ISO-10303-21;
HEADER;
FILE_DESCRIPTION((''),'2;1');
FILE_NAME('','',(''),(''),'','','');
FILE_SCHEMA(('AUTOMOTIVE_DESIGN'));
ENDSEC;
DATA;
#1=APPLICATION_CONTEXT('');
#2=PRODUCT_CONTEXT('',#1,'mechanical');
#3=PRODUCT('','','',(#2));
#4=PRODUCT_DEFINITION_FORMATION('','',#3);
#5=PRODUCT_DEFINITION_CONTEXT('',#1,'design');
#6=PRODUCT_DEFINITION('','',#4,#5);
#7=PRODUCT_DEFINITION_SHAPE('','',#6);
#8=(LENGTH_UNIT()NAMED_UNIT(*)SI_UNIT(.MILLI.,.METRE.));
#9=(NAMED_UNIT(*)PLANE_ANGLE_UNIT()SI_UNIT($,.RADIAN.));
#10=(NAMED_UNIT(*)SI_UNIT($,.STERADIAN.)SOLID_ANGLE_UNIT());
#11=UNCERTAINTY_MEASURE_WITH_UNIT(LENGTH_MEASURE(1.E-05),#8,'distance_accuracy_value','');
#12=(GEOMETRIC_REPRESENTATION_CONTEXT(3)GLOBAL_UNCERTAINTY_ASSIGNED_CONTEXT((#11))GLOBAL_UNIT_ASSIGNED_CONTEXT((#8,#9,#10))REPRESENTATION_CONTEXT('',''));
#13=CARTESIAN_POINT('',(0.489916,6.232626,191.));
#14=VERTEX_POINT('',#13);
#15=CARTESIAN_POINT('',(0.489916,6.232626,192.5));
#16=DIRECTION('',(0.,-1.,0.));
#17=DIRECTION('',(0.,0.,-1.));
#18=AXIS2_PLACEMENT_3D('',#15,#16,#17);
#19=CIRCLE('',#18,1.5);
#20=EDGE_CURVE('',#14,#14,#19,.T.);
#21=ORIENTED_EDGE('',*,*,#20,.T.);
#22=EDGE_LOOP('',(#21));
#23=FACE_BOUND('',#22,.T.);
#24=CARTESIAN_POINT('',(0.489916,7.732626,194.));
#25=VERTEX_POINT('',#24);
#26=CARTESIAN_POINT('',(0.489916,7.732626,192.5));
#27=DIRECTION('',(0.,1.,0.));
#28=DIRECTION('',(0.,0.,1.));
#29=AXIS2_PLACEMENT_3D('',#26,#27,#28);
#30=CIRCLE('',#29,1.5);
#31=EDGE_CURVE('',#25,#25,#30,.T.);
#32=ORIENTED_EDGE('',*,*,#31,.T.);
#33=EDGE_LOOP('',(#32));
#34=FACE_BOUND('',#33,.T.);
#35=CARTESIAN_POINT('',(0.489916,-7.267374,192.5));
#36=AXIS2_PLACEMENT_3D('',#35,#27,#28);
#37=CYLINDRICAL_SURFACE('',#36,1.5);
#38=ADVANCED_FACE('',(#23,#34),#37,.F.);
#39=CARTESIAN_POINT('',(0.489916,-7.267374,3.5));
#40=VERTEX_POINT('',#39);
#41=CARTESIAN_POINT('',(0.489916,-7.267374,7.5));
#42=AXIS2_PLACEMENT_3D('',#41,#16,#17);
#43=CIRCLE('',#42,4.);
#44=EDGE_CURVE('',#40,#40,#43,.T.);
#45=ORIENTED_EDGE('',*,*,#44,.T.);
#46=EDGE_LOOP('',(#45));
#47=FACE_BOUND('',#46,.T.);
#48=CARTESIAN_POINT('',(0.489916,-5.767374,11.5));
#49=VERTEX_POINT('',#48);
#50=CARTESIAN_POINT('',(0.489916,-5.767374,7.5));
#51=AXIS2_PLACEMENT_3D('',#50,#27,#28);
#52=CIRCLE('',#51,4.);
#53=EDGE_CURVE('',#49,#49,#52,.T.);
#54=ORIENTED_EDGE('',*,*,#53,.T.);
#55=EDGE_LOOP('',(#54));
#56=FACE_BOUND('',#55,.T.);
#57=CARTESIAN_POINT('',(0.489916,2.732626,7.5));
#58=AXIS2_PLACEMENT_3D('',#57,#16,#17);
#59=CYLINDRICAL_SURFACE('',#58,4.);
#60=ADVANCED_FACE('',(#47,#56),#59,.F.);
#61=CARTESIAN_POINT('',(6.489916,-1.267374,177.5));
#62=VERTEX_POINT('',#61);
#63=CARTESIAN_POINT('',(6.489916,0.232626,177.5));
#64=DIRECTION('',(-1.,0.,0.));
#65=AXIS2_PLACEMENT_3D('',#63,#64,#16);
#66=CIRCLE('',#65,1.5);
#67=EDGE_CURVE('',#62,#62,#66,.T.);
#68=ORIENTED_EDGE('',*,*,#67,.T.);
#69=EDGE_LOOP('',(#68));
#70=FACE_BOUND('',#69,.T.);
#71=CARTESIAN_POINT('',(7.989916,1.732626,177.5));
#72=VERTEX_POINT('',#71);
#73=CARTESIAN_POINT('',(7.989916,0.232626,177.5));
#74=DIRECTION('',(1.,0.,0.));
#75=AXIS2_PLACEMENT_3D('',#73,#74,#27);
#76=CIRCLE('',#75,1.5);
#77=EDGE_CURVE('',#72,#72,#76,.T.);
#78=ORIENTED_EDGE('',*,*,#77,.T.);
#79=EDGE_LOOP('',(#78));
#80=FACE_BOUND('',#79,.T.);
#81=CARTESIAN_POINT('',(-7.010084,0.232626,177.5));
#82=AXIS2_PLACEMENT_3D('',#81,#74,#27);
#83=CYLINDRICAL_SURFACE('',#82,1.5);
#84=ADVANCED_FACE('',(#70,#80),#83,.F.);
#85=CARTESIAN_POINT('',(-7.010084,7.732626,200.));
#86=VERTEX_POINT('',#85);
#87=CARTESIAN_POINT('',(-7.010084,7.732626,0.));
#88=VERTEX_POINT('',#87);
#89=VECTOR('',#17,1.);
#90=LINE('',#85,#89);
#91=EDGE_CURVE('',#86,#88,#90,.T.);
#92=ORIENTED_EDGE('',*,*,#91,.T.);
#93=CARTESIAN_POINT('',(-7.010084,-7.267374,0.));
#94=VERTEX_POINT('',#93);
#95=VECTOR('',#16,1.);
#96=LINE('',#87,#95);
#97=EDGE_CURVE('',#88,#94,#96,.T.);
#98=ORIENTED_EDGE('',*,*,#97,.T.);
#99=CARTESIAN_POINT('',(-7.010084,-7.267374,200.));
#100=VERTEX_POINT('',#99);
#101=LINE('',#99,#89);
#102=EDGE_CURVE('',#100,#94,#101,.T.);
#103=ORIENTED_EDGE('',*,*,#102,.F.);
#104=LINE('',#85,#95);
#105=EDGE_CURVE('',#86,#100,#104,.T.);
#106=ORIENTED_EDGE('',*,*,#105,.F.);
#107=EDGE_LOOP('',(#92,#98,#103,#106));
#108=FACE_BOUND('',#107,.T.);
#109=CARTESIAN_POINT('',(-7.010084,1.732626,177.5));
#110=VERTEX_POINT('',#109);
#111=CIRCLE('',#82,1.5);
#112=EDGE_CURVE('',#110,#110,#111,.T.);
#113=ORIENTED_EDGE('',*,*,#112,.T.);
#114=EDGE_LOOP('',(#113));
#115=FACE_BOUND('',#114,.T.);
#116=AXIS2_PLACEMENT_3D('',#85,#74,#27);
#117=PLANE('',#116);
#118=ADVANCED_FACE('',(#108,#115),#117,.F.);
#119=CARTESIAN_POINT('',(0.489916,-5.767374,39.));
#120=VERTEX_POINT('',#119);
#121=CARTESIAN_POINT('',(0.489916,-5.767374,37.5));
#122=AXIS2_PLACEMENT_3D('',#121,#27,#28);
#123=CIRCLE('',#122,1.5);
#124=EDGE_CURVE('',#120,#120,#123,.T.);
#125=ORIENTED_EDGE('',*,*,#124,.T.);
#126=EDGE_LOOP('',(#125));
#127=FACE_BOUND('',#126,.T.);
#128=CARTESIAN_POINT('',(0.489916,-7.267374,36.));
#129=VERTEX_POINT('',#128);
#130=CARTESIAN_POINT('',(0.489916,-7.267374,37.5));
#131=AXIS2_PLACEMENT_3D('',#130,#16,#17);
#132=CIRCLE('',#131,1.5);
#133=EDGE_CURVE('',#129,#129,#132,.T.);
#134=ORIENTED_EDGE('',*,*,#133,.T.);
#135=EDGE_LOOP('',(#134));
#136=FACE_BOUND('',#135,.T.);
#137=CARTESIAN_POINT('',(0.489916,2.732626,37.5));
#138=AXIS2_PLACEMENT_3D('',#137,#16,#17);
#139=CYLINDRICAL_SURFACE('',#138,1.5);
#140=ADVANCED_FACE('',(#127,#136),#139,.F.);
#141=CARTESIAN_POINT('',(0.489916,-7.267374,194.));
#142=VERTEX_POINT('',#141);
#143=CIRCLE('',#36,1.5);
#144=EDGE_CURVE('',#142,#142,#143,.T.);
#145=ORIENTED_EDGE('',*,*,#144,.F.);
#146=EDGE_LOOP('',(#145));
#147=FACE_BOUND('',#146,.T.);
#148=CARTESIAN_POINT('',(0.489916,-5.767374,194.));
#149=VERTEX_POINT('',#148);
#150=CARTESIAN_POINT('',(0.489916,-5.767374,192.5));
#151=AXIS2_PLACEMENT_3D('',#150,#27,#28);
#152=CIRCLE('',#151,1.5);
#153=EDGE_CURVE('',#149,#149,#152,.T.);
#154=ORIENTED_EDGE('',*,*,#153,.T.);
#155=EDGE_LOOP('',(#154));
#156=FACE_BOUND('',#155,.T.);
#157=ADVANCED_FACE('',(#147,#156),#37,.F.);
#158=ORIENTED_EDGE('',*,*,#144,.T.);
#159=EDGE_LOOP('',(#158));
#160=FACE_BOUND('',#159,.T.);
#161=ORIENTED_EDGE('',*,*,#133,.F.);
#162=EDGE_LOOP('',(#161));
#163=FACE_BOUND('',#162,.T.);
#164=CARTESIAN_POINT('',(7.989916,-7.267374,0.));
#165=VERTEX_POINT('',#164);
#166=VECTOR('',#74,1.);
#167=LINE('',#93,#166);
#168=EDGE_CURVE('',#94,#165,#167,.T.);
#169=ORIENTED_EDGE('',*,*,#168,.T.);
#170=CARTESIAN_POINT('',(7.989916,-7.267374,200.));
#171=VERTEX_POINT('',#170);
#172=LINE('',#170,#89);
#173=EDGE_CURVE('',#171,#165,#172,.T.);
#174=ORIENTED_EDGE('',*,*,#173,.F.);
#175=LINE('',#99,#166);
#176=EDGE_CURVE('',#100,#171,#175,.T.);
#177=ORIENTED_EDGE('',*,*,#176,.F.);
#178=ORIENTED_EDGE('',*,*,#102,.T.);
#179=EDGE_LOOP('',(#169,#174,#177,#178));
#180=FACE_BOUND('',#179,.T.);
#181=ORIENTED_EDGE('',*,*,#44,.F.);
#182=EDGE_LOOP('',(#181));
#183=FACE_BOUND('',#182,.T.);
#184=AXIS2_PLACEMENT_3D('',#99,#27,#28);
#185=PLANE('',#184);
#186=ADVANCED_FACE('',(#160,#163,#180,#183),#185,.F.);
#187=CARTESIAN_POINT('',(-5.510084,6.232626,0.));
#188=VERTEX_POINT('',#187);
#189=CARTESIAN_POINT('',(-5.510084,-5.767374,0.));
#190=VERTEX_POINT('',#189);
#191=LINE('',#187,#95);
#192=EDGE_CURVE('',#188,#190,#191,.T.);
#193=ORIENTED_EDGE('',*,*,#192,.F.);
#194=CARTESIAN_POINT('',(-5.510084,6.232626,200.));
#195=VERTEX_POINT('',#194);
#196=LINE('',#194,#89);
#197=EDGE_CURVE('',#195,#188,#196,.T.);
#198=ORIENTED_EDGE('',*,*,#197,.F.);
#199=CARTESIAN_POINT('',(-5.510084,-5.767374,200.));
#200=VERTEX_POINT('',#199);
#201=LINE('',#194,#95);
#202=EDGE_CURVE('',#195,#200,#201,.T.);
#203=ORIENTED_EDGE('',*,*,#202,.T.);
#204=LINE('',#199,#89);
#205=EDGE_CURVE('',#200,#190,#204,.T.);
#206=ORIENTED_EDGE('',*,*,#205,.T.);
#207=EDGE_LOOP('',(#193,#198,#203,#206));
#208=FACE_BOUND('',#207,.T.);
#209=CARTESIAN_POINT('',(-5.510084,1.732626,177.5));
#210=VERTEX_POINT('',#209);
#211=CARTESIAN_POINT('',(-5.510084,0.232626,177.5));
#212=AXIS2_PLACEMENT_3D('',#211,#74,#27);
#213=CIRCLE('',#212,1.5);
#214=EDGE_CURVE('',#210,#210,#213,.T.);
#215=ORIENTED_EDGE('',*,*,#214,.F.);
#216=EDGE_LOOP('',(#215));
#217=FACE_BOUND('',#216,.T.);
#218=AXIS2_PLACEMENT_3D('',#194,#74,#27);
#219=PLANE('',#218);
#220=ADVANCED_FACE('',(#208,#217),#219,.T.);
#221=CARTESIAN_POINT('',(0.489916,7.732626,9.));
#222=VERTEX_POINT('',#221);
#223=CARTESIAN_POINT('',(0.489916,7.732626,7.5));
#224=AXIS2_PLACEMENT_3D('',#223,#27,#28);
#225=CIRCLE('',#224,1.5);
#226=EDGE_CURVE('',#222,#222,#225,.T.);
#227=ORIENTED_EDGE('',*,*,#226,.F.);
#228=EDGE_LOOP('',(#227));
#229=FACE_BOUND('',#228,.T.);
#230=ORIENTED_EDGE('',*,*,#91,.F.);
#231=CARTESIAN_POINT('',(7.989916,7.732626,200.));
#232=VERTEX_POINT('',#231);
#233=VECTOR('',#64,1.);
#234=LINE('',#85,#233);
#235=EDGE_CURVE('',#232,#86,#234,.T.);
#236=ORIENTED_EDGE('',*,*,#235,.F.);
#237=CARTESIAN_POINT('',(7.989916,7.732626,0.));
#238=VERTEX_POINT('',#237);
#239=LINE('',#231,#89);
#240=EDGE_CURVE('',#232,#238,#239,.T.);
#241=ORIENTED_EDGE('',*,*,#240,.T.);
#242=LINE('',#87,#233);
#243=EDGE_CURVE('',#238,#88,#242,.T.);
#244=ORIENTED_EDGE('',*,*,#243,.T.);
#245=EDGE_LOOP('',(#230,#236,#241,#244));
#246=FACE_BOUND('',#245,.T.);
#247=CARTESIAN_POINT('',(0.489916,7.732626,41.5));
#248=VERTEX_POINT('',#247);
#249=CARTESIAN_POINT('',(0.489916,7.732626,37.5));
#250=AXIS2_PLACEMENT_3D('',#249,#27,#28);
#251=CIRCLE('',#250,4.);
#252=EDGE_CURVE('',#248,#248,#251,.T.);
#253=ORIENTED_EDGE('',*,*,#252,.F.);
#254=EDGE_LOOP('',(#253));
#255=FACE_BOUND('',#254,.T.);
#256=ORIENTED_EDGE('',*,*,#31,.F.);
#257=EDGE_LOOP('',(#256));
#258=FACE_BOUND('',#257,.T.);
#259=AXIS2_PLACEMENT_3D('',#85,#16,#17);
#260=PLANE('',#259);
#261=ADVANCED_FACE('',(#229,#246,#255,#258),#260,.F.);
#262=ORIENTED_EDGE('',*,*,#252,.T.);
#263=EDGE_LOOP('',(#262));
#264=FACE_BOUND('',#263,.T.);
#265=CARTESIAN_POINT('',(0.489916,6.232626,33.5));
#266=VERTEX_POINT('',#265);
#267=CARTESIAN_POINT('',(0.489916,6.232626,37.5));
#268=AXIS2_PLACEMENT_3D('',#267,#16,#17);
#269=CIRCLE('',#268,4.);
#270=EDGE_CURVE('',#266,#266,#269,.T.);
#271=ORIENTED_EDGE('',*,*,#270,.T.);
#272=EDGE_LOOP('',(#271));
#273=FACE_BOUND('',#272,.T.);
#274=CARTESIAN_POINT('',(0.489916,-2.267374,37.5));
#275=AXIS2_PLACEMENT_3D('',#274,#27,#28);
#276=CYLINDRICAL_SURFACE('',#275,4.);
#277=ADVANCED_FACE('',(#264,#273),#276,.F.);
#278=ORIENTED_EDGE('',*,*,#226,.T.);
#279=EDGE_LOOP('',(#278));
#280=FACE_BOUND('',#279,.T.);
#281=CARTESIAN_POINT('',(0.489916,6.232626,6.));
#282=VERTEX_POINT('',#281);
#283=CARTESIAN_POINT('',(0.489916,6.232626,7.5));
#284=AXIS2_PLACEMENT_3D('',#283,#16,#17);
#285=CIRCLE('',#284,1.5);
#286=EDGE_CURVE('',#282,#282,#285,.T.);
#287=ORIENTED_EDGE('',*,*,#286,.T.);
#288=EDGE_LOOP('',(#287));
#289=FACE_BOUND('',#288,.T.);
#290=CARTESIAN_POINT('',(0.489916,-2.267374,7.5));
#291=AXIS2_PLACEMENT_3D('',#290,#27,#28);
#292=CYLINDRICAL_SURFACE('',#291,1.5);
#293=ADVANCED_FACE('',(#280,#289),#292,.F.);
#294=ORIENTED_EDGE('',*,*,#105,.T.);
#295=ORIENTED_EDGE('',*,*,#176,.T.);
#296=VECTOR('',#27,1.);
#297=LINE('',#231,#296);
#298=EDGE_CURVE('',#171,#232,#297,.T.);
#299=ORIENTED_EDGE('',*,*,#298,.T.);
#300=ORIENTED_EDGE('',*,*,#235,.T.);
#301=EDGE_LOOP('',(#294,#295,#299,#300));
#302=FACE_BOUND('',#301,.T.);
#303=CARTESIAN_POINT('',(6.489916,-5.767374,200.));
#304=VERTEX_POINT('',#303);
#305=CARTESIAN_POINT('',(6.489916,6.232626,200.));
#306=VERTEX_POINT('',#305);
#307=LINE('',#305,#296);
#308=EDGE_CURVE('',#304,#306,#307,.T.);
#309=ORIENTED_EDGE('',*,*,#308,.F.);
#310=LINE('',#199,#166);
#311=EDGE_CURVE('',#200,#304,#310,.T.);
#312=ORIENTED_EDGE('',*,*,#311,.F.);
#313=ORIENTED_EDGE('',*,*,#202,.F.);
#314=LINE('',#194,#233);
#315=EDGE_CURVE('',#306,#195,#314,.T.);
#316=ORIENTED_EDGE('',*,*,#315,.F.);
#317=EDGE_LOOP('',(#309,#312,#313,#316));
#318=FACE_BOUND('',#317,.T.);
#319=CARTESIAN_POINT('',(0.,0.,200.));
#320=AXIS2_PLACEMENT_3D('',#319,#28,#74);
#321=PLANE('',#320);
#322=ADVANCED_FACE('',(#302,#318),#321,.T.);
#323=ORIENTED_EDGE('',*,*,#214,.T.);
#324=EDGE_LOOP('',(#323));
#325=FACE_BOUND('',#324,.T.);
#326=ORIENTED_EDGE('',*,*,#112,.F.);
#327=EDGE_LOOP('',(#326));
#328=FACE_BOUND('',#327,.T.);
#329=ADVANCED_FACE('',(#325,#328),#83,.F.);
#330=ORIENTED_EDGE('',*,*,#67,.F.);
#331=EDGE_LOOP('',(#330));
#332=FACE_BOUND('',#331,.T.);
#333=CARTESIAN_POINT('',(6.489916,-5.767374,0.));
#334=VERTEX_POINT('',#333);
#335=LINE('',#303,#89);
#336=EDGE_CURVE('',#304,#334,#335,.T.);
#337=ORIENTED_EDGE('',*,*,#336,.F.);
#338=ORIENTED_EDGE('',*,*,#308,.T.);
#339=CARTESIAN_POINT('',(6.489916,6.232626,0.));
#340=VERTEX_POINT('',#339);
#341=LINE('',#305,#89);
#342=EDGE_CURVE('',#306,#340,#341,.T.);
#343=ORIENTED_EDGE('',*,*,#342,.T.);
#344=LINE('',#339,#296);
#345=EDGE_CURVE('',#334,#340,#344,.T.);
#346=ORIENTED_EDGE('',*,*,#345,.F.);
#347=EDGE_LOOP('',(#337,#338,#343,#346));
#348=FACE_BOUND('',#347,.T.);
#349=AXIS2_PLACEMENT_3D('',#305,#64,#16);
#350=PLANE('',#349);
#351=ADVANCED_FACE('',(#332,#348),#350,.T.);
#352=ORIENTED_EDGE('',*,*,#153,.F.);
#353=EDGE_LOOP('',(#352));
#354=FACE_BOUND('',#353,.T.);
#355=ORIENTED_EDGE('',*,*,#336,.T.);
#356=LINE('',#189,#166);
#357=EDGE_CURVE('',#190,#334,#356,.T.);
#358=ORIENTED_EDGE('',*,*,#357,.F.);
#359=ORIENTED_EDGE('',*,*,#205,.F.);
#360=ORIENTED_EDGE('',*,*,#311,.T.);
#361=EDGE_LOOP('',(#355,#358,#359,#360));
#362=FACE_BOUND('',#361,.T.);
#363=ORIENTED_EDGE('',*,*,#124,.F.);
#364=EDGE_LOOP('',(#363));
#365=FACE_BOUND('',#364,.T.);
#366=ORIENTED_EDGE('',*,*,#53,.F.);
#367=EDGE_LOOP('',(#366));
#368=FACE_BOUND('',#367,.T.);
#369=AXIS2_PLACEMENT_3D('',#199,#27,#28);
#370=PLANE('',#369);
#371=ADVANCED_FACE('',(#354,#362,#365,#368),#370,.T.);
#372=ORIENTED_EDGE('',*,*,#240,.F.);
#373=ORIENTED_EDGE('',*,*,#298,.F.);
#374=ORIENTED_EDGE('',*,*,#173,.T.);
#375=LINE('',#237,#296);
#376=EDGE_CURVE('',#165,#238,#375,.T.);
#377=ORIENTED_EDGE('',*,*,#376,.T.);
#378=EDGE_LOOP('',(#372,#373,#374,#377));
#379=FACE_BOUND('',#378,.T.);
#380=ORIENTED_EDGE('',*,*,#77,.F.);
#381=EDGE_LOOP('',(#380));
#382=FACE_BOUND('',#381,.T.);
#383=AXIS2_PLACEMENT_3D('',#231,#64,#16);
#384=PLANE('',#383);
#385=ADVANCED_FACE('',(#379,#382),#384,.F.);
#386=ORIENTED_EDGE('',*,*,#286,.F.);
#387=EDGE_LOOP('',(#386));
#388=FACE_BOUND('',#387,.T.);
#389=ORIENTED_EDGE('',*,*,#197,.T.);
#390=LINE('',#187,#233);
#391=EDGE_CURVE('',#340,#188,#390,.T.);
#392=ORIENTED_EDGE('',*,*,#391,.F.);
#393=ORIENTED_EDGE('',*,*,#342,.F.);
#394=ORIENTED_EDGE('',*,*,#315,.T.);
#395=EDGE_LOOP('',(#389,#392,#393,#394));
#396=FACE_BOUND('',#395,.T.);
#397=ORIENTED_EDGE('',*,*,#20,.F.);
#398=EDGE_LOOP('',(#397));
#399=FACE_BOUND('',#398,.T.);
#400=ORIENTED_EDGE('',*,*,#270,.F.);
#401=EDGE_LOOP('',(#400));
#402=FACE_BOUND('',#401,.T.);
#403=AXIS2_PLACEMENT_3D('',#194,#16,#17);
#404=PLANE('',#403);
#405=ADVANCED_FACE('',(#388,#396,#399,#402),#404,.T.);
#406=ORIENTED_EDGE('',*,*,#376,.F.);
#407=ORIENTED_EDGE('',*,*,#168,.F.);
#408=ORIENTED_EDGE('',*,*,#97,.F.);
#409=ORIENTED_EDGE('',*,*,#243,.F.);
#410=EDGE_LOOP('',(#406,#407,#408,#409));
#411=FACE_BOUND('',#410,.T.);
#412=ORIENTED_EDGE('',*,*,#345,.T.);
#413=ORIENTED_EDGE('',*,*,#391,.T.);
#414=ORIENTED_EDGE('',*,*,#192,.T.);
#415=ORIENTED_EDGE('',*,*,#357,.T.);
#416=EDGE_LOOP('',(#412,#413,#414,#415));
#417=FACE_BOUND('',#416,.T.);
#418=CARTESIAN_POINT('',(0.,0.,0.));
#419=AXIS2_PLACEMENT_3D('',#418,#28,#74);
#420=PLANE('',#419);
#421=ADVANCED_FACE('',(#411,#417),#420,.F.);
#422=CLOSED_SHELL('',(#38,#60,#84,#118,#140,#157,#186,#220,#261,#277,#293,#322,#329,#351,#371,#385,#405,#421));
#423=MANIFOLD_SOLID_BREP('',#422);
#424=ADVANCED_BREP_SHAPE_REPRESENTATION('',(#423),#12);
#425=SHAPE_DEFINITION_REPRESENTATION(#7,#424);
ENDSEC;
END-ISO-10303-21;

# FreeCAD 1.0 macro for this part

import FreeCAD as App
import Part
import Sketcher

V = App.Vector
Q = App.Units.Quantity


def add_polygon(sketch, points):
    """Adds a closed chain of lines whose ends are joined by coincident constraints."""
    first, n = sketch.GeometryCount, len(points)
    for a, b in zip(points, points[1:] + points[:1]):
        sketch.addGeometry(Part.LineSegment(App.Vector(*a, 0), App.Vector(*b, 0)), False)
    for i in range(n):
        sketch.addConstraint(Sketcher.Constraint("Coincident", first + i, 2, first + (i + 1) % n, 1))

doc = App.newDocument("Part")
body = doc.addObject("PartDesign::Body", "Body")

# Sketch on XY plane
sketch1 = body.newObject("Sketcher::SketchObject", "Sketch")
sketch1.AttachmentSupport = (doc.getObject("XY_Plane"), [""])
sketch1.MapMode = "FlatFace"
add_polygon(sketch1, [(-7, 8), (-7, -7), (8, -7), (8, 8)])  # lines 0-3
add_polygon(sketch1, [(6, -6), (-6, -6), (-6, 6), (6, 6)])  # lines 4-7
sketch1.addConstraint(Sketcher.Constraint("Vertical", 0))
sketch1.addConstraint(Sketcher.Constraint("Horizontal", 1))
sketch1.addConstraint(Sketcher.Constraint("Vertical", 2))
sketch1.addConstraint(Sketcher.Constraint("Horizontal", 3))
sketch1.addConstraint(Sketcher.Constraint("Horizontal", 4))
sketch1.addConstraint(Sketcher.Constraint("Vertical", 5))
sketch1.addConstraint(Sketcher.Constraint("Horizontal", 6))
sketch1.addConstraint(Sketcher.Constraint("Vertical", 7))
sketch1.addConstraint(Sketcher.Constraint("Equal", 3, 0))
sketch1.addConstraint(Sketcher.Constraint("Equal", 6, 5))
sketch1.addConstraint(Sketcher.Constraint("DistanceX", 1, 1, 1, 2, Q("15 mm")))
sketch1.addConstraint(Sketcher.Constraint("DistanceX", 4, 2, 4, 1, Q("12 mm")))
sketch1.addConstraint(Sketcher.Constraint("DistanceX", 0, 2, 4, 2, Q("1.5 mm")))
sketch1.addConstraint(Sketcher.Constraint("DistanceY", 0, 2, 4, 2, Q("1.5 mm")))
sketch1.addConstraint(Sketcher.Constraint("DistanceX", 0, 2, -1, 1, Q("7.010084 mm")))
sketch1.addConstraint(Sketcher.Constraint("DistanceY", 0, 2, -1, 1, Q("7.267374 mm")))
pad1 = body.newObject("PartDesign::Pad", "Pad")
pad1.Profile = sketch1
pad1.Length = 200

# Sketch on XZ plane
sketch2 = body.newObject("Sketcher::SketchObject", "Sketch001")
sketch2.AttachmentSupport = (doc.getObject("XZ_Plane"), [""])
sketch2.MapMode = "FlatFace"
sketch2.AttachmentOffset = App.Placement(V(0, 0, -7.732626), App.Rotation())
sketch2.addGeometry(Part.Circle(V(0.5, 192.5, 0), V(0, 0, 1), 1.5), False)
sketch2.addConstraint(Sketcher.Constraint("Diameter", 0, Q("3 mm")))
sketch2.addConstraint(Sketcher.Constraint("DistanceY", -1, 1, 0, 3, Q("192.5 mm")))
sketch2.addConstraint(Sketcher.Constraint("DistanceX", -1, 1, 0, 3, Q("0.489916 mm")))
pocket1 = body.newObject("PartDesign::Pocket", "Pocket")
pocket1.Profile = sketch2
pocket1.Length = 15
pocket1.Reversed = True

# Sketch on YZ plane
sketch3 = body.newObject("Sketcher::SketchObject", "Sketch002")
sketch3.AttachmentSupport = (doc.getObject("YZ_Plane"), [""])
sketch3.MapMode = "FlatFace"
sketch3.AttachmentOffset = App.Placement(V(0, 0, 7.989916), App.Rotation())
sketch3.addGeometry(Part.Circle(V(0.2, 177.5, 0), V(0, 0, 1), 1.5), False)
sketch3.addConstraint(Sketcher.Constraint("Diameter", 0, Q("3 mm")))
sketch3.addConstraint(Sketcher.Constraint("DistanceY", -1, 1, 0, 3, Q("177.5 mm")))
sketch3.addConstraint(Sketcher.Constraint("DistanceX", -1, 1, 0, 3, Q("0.232626 mm")))
pocket2 = body.newObject("PartDesign::Pocket", "Pocket001")
pocket2.Profile = sketch3
pocket2.Length = 15

# Sketch on XZ plane
sketch4 = body.newObject("Sketcher::SketchObject", "Sketch003")
sketch4.AttachmentSupport = (doc.getObject("XZ_Plane"), [""])
sketch4.MapMode = "FlatFace"
sketch4.AttachmentOffset = App.Placement(V(0, 0, -7.732626), App.Rotation())
sketch4.addGeometry(Part.Circle(V(0.5, 7.5, 0), V(0, 0, 1), 1.5), False)
sketch4.addGeometry(Part.Circle(V(0.5, 37.5, 0), V(0, 0, 1), 4), False)
sketch4.addConstraint(Sketcher.Constraint("Vertical", 0, 3, 1, 3))
sketch4.addConstraint(Sketcher.Constraint("Diameter", 0, Q("3 mm")))
sketch4.addConstraint(Sketcher.Constraint("Diameter", 1, Q("8 mm")))
sketch4.addConstraint(Sketcher.Constraint("DistanceY", 0, 3, 1, 3, Q("30 mm")))
sketch4.addConstraint(Sketcher.Constraint("DistanceY", -1, 1, 0, 3, Q("7.5 mm")))
sketch4.addConstraint(Sketcher.Constraint("DistanceX", -1, 1, 0, 3, Q("0.489916 mm")))
pocket3 = body.newObject("PartDesign::Pocket", "Pocket002")
pocket3.Profile = sketch4
pocket3.Length = 10
pocket3.Reversed = True

# Sketch on XZ plane
sketch5 = body.newObject("Sketcher::SketchObject", "Sketch004")
sketch5.AttachmentSupport = (doc.getObject("XZ_Plane"), [""])
sketch5.MapMode = "FlatFace"
sketch5.AttachmentOffset = App.Placement(V(0, 0, 7.267374), App.Rotation())
sketch5.addGeometry(Part.Circle(V(0.5, 37.5, 0), V(0, 0, 1), 1.5), False)
sketch5.addGeometry(Part.Circle(V(0.5, 7.5, 0), V(0, 0, 1), 4), False)
sketch5.addConstraint(Sketcher.Constraint("Vertical", 0, 3, 1, 3))
sketch5.addConstraint(Sketcher.Constraint("Diameter", 0, Q("3 mm")))
sketch5.addConstraint(Sketcher.Constraint("Diameter", 1, Q("8 mm")))
sketch5.addConstraint(Sketcher.Constraint("DistanceY", 1, 3, 0, 3, Q("30 mm")))
sketch5.addConstraint(Sketcher.Constraint("DistanceY", -1, 1, 0, 3, Q("37.5 mm")))
sketch5.addConstraint(Sketcher.Constraint("DistanceX", -1, 1, 0, 3, Q("0.489916 mm")))
pocket4 = body.newObject("PartDesign::Pocket", "Pocket003")
pocket4.Profile = sketch5
pocket4.Length = 10

doc.recompute()
